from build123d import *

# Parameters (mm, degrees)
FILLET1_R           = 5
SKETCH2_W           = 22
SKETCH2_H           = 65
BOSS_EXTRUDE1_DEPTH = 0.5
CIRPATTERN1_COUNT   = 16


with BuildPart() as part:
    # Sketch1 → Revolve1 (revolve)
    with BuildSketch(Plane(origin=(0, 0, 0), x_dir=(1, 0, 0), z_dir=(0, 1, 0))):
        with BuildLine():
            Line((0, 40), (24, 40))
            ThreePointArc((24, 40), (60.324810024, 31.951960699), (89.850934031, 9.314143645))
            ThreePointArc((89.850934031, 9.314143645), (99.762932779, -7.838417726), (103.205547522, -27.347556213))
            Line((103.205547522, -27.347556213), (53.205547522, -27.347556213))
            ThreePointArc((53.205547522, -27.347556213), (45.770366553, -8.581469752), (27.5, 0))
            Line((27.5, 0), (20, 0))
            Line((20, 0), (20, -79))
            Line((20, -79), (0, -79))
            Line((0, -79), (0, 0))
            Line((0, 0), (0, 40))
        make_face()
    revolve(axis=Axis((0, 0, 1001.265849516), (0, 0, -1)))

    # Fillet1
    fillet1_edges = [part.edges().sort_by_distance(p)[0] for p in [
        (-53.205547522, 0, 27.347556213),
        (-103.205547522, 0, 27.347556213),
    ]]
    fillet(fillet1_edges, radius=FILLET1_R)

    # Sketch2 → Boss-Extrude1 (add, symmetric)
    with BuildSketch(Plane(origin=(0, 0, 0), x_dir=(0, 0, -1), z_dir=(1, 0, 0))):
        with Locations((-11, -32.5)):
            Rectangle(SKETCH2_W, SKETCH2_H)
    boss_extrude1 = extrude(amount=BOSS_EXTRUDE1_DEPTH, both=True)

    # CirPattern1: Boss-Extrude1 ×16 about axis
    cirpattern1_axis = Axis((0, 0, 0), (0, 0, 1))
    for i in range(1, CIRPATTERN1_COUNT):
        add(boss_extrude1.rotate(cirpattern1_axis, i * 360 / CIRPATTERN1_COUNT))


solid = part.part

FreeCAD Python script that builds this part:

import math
import FreeCAD as App
import Part
import Sketcher

V = App.Vector


def edges_at(feature, points):
    """Names of the edges that pass closest to the given points."""
    edges = feature.Shape.Edges
    near = lambda p: min(range(len(edges)), key=lambda i: edges[i].distToShape(Part.Vertex(*p))[0])
    return sorted({f"Edge{near(p) + 1}" for p in points})

doc = App.newDocument("Part")
body = doc.addObject("PartDesign::Body", "Body")

# Sketch on XZ plane
sketch1 = body.newObject("Sketcher::SketchObject", "Sketch")
sketch1.AttachmentSupport = (doc.getObject("XZ_Plane"), [""])
sketch1.MapMode = "FlatFace"
sketch1.addGeometry([
    Part.LineSegment(V(24, -40, 0), V(0, -40, 0)),  # 0
    Part.LineSegment(V(0, -40, 0), V(0, 79, 0)),  # 1
    Part.LineSegment(V(0, 79, 0), V(20, 79, 0)),  # 2
    Part.LineSegment(V(20, 79, 0), V(20, 0, 0)),  # 3
    Part.LineSegment(V(20, 0, 0), V(28, 0, 0)),  # 4
    Part.ArcOfCircle(Part.Circle(V(26, 27, 0), V(0, 0, 1), 27), math.radians(-86), math.radians(0)),  # 5
    Part.LineSegment(V(53, 27, 0), V(103, 27, 0)),  # 6
    Part.ArcOfCircle(Part.Circle(V(46, 27, 0), V(0, 0, 1), 57), math.radians(-40), math.radians(0)),  # 7
    Part.ArcOfCircle(Part.Circle(V(24, 46, 0), V(0, 0, 1), 86), math.radians(-90), math.radians(-40)),  # 8
], False)
sketch1.addConstraint([
    Sketcher.Constraint("Coincident", 0, 2, 1, 1),
    Sketcher.Constraint("Coincident", 1, 2, 2, 1),
    Sketcher.Constraint("Coincident", 2, 2, 3, 1),
    Sketcher.Constraint("Coincident", 3, 2, 4, 1),
    Sketcher.Constraint("Coincident", 4, 2, 5, 1),
    Sketcher.Constraint("Coincident", 5, 2, 6, 1),
    Sketcher.Constraint("Coincident", 6, 2, 7, 2),
    Sketcher.Constraint("Tangent", 7, 1, 8, 2),
    Sketcher.Constraint("Tangent", 8, 1, 0, 1),
    Sketcher.Constraint("Horizontal", 0),
    Sketcher.Constraint("Vertical", 1),
    Sketcher.Constraint("Horizontal", 2),
    Sketcher.Constraint("Vertical", 3),
    Sketcher.Constraint("Horizontal", 4),
    Sketcher.Constraint("Horizontal", 6),
    Sketcher.Constraint("PointOnObject", 0, 2, -2),
    Sketcher.Constraint("PointOnObject", 3, 2, -1),
    Sketcher.Constraint("Horizontal", 5, 3, 7, 3),
    Sketcher.Constraint("Horizontal", 7, 3, 5, 2),
    Sketcher.Constraint("Radius", 7, 57.0),
    Sketcher.Constraint("Radius", 8, 86.0),
    Sketcher.Constraint("Radius", 5, 27.4),
    Sketcher.Constraint("DistanceX", 0, 2, 0, 1, 24.0),
    Sketcher.Constraint("DistanceX", 2, 1, 2, 2, 20.0),
    Sketcher.Constraint("DistanceX", 6, 1, 6, 2, 50.0),
    Sketcher.Constraint("DistanceY", 1, 1, 1, 2, 119.0),
    Sketcher.Constraint("DistanceY", 3, 2, 3, 1, 79.0),
    Sketcher.Constraint("DistanceX", 4, 1, 4, 2, 7.5),
])
revolution = body.newObject("PartDesign::Revolution", "Revolution")
revolution.Profile = sketch1
revolution.ReferenceAxis = (sketch1, ["V_Axis"])
revolution.Angle = 360
doc.recompute()

fillet = body.newObject("PartDesign::Fillet", "Fillet")
fillet.Base = (revolution, edges_at(revolution, [(-53.206, 0, 27.348), (-103.206, 0, 27.348)]))
fillet.Radius = 5

# Sketch on YZ plane
sketch2 = body.newObject("Sketcher::SketchObject", "Sketch001")
sketch2.AttachmentSupport = (doc.getObject("YZ_Plane"), [""])
sketch2.MapMode = "FlatFace"
sketch2.addGeometry([
    Part.LineSegment(V(0, 22, 0), V(-65, 22, 0)),
    Part.LineSegment(V(-65, 22, 0), V(-65, 0, 0)),
    Part.LineSegment(V(-65, 0, 0), V(0, 0, 0)),
    Part.LineSegment(V(0, 0, 0), V(0, 22, 0)),
], False)
sketch2.addConstraint([
    Sketcher.Constraint("Coincident", 0, 2, 1, 1),
    Sketcher.Constraint("Coincident", 1, 2, 2, 1),
    Sketcher.Constraint("Coincident", 2, 2, 3, 1),
    Sketcher.Constraint("Coincident", 3, 2, 0, 1),
    Sketcher.Constraint("Horizontal", 0),
    Sketcher.Constraint("Vertical", 1),
    Sketcher.Constraint("Horizontal", 2),
    Sketcher.Constraint("Vertical", 3),
    Sketcher.Constraint("Coincident", 2, 2, -1, 1),
    Sketcher.Constraint("DistanceX", 0, 2, 0, 1, 65.0),
    Sketcher.Constraint("DistanceY", 1, 2, 1, 1, 22.0),
])
pad1 = body.newObject("PartDesign::Pad", "Pad")
pad1.Profile = sketch2
pad1.Length = 1
pad1.Midplane = True
doc.recompute()

polarpattern = body.newObject("PartDesign::PolarPattern", "PolarPattern")
polarpattern.Originals = [pad1]
polarpattern.Axis = (doc.getObject("Z_Axis"), [""])
polarpattern.Angle = 360
polarpattern.Occurrences = 16
body.Tip = polarpattern

doc.recompute()
